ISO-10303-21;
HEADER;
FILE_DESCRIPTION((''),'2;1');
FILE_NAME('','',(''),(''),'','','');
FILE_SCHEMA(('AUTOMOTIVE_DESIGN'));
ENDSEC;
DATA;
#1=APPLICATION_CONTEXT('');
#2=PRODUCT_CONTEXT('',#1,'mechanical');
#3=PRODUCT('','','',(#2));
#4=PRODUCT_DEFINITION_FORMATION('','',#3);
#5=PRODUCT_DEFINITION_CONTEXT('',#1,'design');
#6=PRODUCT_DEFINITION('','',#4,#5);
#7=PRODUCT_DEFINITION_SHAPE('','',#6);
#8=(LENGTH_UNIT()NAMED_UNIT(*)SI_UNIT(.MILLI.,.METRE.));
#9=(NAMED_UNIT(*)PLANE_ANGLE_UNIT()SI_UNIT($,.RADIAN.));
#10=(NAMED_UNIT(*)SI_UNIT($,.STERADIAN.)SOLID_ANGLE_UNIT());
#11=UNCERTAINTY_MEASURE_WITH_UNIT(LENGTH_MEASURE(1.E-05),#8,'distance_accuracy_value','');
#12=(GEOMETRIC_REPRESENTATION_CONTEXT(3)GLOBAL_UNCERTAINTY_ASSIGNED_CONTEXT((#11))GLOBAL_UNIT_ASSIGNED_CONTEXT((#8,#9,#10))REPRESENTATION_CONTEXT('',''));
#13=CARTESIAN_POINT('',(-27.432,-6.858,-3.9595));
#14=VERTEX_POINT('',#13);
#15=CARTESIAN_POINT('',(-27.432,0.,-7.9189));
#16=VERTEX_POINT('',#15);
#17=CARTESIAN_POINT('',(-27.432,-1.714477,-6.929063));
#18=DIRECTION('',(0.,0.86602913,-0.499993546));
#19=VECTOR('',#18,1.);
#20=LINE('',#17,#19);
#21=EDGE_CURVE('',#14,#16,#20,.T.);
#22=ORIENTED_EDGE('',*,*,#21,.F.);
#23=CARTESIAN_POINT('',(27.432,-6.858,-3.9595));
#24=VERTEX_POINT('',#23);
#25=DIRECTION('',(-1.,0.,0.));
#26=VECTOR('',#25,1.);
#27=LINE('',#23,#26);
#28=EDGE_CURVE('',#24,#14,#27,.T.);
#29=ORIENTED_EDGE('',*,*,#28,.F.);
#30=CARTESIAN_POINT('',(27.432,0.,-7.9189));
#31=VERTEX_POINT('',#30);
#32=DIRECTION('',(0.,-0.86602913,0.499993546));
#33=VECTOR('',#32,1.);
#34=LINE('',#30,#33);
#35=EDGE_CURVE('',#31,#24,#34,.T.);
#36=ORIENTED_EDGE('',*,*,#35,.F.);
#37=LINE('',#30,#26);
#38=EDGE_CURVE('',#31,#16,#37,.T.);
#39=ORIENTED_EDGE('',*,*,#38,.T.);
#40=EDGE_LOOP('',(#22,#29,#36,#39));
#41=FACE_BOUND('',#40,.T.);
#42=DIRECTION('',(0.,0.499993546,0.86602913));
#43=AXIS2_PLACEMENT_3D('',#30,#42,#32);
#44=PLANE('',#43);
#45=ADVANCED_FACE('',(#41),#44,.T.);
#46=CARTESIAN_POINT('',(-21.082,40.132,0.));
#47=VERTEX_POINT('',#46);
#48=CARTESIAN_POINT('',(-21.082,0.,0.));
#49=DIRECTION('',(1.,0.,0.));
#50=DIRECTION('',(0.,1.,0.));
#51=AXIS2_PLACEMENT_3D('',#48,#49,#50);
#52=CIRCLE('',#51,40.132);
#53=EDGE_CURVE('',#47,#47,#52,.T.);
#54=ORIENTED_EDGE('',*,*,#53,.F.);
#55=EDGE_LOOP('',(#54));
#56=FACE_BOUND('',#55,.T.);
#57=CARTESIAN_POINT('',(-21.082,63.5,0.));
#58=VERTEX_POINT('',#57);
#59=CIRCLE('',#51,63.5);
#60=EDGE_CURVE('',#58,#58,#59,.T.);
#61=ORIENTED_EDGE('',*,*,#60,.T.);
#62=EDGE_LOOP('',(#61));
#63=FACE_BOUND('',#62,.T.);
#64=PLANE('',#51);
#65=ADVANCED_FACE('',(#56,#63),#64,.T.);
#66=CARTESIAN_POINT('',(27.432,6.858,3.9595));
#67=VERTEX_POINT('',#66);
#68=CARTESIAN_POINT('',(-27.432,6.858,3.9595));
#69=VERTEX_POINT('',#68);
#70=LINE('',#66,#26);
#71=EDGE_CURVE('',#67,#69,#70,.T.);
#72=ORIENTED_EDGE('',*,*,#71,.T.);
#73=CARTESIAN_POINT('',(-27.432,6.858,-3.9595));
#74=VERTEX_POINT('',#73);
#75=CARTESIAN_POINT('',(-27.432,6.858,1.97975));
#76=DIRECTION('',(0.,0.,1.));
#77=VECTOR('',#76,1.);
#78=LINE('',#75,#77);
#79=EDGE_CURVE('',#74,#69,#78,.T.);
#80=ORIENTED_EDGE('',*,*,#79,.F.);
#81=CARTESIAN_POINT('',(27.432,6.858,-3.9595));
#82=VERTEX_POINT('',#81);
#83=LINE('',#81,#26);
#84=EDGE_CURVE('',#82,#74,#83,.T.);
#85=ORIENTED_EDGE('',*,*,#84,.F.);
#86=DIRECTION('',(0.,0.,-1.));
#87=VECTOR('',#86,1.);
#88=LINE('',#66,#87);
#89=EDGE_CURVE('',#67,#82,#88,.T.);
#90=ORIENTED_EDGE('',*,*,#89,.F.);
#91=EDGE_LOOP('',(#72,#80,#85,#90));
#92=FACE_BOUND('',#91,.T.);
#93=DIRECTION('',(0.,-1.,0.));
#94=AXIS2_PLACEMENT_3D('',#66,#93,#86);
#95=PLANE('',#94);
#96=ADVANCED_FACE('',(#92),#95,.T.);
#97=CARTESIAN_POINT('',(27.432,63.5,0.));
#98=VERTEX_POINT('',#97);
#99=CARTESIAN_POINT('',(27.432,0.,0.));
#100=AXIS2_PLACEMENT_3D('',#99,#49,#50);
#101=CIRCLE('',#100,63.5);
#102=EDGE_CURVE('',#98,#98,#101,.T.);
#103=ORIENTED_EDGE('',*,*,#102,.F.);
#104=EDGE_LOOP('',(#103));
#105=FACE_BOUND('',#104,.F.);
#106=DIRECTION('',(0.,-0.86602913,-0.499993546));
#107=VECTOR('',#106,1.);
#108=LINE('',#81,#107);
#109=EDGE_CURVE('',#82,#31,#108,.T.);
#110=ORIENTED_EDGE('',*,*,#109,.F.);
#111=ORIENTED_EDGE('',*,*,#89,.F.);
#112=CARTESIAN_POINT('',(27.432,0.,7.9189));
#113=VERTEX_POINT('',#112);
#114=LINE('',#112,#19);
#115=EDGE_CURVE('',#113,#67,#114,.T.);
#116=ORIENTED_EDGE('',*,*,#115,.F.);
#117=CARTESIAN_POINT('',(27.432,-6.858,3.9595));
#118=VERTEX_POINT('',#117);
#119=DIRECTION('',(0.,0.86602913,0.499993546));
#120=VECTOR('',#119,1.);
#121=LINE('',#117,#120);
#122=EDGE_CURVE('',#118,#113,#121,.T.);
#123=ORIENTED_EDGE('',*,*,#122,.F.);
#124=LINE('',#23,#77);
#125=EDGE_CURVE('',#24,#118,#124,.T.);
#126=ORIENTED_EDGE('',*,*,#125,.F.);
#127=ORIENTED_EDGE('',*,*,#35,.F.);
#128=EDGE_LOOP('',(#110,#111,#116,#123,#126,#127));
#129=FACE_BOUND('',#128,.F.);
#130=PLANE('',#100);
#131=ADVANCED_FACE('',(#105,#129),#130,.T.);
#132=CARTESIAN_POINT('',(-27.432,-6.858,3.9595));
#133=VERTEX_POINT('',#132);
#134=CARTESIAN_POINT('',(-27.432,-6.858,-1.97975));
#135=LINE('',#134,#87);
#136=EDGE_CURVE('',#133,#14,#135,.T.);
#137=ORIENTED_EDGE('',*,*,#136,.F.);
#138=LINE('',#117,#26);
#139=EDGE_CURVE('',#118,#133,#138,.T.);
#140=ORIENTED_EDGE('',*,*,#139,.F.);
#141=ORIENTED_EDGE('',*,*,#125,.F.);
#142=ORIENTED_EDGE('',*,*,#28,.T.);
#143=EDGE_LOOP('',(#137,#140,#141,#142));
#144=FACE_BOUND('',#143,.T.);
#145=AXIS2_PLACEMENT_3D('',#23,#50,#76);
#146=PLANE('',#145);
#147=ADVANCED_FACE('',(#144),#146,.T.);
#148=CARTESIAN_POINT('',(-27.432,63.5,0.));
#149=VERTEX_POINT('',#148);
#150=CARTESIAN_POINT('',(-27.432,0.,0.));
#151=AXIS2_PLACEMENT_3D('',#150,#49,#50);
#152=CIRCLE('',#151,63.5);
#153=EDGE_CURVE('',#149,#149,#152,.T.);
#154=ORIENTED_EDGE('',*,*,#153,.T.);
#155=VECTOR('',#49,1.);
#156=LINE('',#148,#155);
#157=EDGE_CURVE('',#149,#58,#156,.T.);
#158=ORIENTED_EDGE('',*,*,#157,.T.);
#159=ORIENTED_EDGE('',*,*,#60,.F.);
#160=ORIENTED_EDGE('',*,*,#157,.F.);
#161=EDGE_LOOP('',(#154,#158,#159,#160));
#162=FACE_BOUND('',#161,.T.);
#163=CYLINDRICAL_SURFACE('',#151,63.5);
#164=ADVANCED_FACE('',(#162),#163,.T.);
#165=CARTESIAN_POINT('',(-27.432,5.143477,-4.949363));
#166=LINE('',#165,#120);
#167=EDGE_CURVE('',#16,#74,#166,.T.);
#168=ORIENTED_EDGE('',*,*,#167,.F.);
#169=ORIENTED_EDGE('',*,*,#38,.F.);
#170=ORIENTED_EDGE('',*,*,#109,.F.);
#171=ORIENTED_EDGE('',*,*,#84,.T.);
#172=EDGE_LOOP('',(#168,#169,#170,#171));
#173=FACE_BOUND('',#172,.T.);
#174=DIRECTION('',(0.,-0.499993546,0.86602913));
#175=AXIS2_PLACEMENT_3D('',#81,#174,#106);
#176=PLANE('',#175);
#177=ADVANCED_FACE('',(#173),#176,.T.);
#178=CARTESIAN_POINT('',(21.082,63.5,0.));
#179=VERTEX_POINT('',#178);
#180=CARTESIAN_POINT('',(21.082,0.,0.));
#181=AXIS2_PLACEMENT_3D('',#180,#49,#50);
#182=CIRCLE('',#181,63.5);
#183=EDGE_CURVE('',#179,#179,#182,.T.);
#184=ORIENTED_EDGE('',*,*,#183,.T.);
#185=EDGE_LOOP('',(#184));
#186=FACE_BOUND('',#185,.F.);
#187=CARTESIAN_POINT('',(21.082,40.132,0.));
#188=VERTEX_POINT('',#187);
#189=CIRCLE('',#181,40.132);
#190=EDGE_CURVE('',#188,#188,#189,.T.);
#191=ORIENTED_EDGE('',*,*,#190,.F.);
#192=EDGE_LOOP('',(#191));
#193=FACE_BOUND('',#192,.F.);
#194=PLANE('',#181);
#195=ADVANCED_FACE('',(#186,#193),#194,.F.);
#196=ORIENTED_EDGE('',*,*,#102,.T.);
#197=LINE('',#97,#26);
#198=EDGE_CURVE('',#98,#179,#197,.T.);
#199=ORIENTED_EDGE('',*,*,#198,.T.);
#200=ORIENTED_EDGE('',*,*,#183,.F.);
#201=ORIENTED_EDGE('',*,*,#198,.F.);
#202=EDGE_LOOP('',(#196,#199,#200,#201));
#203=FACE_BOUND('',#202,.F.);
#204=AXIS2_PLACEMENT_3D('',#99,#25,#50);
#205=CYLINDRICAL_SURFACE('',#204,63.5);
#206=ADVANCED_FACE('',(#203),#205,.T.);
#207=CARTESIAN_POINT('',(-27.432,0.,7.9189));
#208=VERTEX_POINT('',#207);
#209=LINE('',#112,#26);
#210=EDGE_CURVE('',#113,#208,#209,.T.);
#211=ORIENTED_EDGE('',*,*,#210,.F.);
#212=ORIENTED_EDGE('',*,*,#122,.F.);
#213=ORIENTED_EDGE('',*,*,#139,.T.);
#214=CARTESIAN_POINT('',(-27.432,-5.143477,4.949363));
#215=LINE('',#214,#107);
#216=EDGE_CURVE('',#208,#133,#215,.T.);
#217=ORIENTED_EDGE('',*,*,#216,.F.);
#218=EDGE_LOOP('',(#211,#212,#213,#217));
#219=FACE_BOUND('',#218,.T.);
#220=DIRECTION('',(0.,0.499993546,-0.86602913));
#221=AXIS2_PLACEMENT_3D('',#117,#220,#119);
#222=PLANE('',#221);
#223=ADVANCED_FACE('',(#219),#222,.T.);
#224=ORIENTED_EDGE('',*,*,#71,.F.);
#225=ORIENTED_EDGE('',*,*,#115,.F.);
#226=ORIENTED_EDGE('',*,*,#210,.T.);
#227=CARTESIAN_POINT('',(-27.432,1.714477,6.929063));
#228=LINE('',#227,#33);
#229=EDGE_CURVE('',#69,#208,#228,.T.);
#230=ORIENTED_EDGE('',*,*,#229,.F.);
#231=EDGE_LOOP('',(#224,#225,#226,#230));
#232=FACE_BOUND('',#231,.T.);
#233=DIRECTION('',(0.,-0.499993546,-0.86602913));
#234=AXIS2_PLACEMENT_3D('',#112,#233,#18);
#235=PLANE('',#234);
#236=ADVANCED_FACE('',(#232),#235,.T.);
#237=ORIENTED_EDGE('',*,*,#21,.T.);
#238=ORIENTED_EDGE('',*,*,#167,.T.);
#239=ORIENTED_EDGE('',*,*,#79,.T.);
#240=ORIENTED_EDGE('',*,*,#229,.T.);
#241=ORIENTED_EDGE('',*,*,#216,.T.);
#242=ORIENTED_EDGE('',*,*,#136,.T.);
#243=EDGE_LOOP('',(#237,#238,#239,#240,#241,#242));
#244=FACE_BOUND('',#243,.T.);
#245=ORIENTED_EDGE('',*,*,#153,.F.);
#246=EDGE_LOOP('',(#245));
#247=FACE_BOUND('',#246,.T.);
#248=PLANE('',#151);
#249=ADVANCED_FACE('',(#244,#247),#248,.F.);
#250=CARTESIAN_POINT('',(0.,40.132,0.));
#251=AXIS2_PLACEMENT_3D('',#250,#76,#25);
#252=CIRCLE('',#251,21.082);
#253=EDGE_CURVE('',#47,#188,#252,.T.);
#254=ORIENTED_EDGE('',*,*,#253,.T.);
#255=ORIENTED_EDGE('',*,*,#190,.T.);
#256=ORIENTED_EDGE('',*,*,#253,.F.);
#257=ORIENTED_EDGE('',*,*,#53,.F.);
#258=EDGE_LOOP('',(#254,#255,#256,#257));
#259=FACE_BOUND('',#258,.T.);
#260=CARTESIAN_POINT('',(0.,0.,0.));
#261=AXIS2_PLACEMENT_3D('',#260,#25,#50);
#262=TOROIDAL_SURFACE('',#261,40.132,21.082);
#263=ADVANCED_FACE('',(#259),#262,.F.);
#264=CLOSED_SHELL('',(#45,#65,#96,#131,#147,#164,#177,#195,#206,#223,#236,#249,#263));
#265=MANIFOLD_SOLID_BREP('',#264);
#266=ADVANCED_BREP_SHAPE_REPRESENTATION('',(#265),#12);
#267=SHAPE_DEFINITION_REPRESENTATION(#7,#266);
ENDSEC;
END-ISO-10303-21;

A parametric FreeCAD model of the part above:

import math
import FreeCAD as App
import Part
import Sketcher
from FreeCAD import Vector
Q = App.Units.Quantity

doc = App.newDocument("Part")
body = doc.addObject("PartDesign::Body", "Body")

sketch1 = body.newObject("Sketcher::SketchObject", "Sketch")
sketch1.AttachmentSupport = (doc.getObject("XY_Plane"), [""])
sketch1.MapMode = "FlatFace"
sketch1.addGeometry(Part.ArcOfCircle(Part.Circle(Vector(0, 40.132, 0), Vector(0, 0, 1), 21.082), math.radians(180), math.radians(360)), False)
sketch1.addGeometry(Part.LineSegment(Vector(-21.082, 40.132, 0), Vector(-21.082, 63.5, 0)), False)
sketch1.addGeometry(Part.LineSegment(Vector(-21.082, 63.5, 0), Vector(-27.432, 63.5, 0)), False)
sketch1.addGeometry(Part.LineSegment(Vector(-27.432, 63.5, 0), Vector(-27.432, 0, 0)), False)
sketch1.addGeometry(Part.LineSegment(Vector(-27.432, 0, 0), Vector(27.432, 0, 0)), False)
sketch1.addGeometry(Part.LineSegment(Vector(27.432, 0, 0), Vector(27.432, 63.5, 0)), False)
sketch1.addGeometry(Part.LineSegment(Vector(27.432, 63.5, 0), Vector(21.082, 63.5, 0)), False)
sketch1.addGeometry(Part.LineSegment(Vector(21.082, 63.5, 0), Vector(21.082, 40.132, 0)), False)
sketch1.addConstraint(Sketcher.Constraint("Tangent", 0, 1, 1, 1))
sketch1.addConstraint(Sketcher.Constraint("Coincident", 1, 2, 2, 1))
sketch1.addConstraint(Sketcher.Constraint("Coincident", 2, 2, 3, 1))
sketch1.addConstraint(Sketcher.Constraint("Coincident", 3, 2, 4, 1))
sketch1.addConstraint(Sketcher.Constraint("Coincident", 4, 2, 5, 1))
sketch1.addConstraint(Sketcher.Constraint("Coincident", 5, 2, 6, 1))
sketch1.addConstraint(Sketcher.Constraint("Coincident", 6, 2, 7, 1))
sketch1.addConstraint(Sketcher.Constraint("Tangent", 7, 2, 0, 2))
sketch1.addConstraint(Sketcher.Constraint("Vertical", 1))
sketch1.addConstraint(Sketcher.Constraint("Horizontal", 2))
sketch1.addConstraint(Sketcher.Constraint("Vertical", 3))
sketch1.addConstraint(Sketcher.Constraint("Horizontal", 4))
sketch1.addConstraint(Sketcher.Constraint("Vertical", 5))
sketch1.addConstraint(Sketcher.Constraint("Horizontal", 6))
sketch1.addConstraint(Sketcher.Constraint("Vertical", 7))
sketch1.addConstraint(Sketcher.Constraint("Symmetric", 3, 2, 4, 2, -1, 1))
sketch1.addConstraint(Sketcher.Constraint("Symmetric", 1, 2, 6, 2, -2))
sketch1.addConstraint(Sketcher.Constraint("Radius", 0, Q("0.83 in")))
sketch1.addConstraint(Sketcher.Constraint("DistanceY", 3, 2, 3, 1, Q("2.5 in")))
sketch1.addConstraint(Sketcher.Constraint("DistanceX", 2, 2, 2, 1, Q("0.25 in")))
sketch1.addConstraint(Sketcher.Constraint("DistanceY", 1, 1, 1, 2, Q("0.92 in")))
revolution = body.newObject("PartDesign::Revolution", "Revolution")
revolution.Profile = sketch1
revolution.ReferenceAxis = (sketch1, ["H_Axis"])
revolution.Angle = 360

sketch2 = body.newObject("Sketcher::SketchObject", "Sketch001")
sketch2.AttachmentSupport = (doc.getObject("YZ_Plane"), [""])
sketch2.MapMode = "FlatFace"
sketch2.AttachmentOffset = App.Placement(Vector(0, 0, 1.08 * 25.4), App.Rotation())
sketch2.addGeometry(Part.LineSegment(Vector(-6.858, -3.9595, 0), Vector(0, -7.9189, 0)), False)
sketch2.addGeometry(Part.LineSegment(Vector(0, -7.9189, 0), Vector(6.858, -3.9595, 0)), False)
sketch2.addGeometry(Part.LineSegment(Vector(6.858, -3.9595, 0), Vector(6.858, 3.9595, 0)), False)
sketch2.addGeometry(Part.LineSegment(Vector(6.858, 3.9595, 0), Vector(0, 7.9189, 0)), False)
sketch2.addGeometry(Part.LineSegment(Vector(0, 7.9189, 0), Vector(-6.858, 3.9595, 0)), False)
sketch2.addGeometry(Part.LineSegment(Vector(-6.858, 3.9595, 0), Vector(-6.858, -3.9595, 0)), False)
sketch2.addConstraint(Sketcher.Constraint("Coincident", 0, 2, 1, 1))
sketch2.addConstraint(Sketcher.Constraint("Coincident", 1, 2, 2, 1))
sketch2.addConstraint(Sketcher.Constraint("Coincident", 2, 2, 3, 1))
sketch2.addConstraint(Sketcher.Constraint("Coincident", 3, 2, 4, 1))
sketch2.addConstraint(Sketcher.Constraint("Coincident", 4, 2, 5, 1))
sketch2.addConstraint(Sketcher.Constraint("Coincident", 5, 2, 0, 1))
sketch2.addConstraint(Sketcher.Constraint("Vertical", 2))
sketch2.addConstraint(Sketcher.Constraint("Vertical", 5))
sketch2.addConstraint(Sketcher.Constraint("Symmetric", 0, 2, 3, 2, -1, 1))
sketch2.addConstraint(Sketcher.Constraint("Symmetric", 1, 2, 4, 2, -1, 1))
sketch2.addConstraint(Sketcher.Constraint("PointOnObject", 0, 2, -2))
sketch2.addConstraint(Sketcher.Constraint("Parallel", 0, 3))
sketch2.addConstraint(Sketcher.Constraint("Horizontal", 2, 2, 4, 2))
sketch2.addConstraint(Sketcher.Constraint("DistanceX", 4, 2, 2, 2, Q("0.54 in")))
sketch2.addConstraint(Sketcher.Constraint("Angle", 0, Q("-29.9996 deg")))
sketch2.addConstraint(Sketcher.Constraint("DistanceY", 2, 1, 2, 2, 7.919))
pocket1 = body.newObject("PartDesign::Pocket", "Pocket")
pocket1.Profile = sketch2
pocket1.Type = "ThroughAll"

doc.recompute()
